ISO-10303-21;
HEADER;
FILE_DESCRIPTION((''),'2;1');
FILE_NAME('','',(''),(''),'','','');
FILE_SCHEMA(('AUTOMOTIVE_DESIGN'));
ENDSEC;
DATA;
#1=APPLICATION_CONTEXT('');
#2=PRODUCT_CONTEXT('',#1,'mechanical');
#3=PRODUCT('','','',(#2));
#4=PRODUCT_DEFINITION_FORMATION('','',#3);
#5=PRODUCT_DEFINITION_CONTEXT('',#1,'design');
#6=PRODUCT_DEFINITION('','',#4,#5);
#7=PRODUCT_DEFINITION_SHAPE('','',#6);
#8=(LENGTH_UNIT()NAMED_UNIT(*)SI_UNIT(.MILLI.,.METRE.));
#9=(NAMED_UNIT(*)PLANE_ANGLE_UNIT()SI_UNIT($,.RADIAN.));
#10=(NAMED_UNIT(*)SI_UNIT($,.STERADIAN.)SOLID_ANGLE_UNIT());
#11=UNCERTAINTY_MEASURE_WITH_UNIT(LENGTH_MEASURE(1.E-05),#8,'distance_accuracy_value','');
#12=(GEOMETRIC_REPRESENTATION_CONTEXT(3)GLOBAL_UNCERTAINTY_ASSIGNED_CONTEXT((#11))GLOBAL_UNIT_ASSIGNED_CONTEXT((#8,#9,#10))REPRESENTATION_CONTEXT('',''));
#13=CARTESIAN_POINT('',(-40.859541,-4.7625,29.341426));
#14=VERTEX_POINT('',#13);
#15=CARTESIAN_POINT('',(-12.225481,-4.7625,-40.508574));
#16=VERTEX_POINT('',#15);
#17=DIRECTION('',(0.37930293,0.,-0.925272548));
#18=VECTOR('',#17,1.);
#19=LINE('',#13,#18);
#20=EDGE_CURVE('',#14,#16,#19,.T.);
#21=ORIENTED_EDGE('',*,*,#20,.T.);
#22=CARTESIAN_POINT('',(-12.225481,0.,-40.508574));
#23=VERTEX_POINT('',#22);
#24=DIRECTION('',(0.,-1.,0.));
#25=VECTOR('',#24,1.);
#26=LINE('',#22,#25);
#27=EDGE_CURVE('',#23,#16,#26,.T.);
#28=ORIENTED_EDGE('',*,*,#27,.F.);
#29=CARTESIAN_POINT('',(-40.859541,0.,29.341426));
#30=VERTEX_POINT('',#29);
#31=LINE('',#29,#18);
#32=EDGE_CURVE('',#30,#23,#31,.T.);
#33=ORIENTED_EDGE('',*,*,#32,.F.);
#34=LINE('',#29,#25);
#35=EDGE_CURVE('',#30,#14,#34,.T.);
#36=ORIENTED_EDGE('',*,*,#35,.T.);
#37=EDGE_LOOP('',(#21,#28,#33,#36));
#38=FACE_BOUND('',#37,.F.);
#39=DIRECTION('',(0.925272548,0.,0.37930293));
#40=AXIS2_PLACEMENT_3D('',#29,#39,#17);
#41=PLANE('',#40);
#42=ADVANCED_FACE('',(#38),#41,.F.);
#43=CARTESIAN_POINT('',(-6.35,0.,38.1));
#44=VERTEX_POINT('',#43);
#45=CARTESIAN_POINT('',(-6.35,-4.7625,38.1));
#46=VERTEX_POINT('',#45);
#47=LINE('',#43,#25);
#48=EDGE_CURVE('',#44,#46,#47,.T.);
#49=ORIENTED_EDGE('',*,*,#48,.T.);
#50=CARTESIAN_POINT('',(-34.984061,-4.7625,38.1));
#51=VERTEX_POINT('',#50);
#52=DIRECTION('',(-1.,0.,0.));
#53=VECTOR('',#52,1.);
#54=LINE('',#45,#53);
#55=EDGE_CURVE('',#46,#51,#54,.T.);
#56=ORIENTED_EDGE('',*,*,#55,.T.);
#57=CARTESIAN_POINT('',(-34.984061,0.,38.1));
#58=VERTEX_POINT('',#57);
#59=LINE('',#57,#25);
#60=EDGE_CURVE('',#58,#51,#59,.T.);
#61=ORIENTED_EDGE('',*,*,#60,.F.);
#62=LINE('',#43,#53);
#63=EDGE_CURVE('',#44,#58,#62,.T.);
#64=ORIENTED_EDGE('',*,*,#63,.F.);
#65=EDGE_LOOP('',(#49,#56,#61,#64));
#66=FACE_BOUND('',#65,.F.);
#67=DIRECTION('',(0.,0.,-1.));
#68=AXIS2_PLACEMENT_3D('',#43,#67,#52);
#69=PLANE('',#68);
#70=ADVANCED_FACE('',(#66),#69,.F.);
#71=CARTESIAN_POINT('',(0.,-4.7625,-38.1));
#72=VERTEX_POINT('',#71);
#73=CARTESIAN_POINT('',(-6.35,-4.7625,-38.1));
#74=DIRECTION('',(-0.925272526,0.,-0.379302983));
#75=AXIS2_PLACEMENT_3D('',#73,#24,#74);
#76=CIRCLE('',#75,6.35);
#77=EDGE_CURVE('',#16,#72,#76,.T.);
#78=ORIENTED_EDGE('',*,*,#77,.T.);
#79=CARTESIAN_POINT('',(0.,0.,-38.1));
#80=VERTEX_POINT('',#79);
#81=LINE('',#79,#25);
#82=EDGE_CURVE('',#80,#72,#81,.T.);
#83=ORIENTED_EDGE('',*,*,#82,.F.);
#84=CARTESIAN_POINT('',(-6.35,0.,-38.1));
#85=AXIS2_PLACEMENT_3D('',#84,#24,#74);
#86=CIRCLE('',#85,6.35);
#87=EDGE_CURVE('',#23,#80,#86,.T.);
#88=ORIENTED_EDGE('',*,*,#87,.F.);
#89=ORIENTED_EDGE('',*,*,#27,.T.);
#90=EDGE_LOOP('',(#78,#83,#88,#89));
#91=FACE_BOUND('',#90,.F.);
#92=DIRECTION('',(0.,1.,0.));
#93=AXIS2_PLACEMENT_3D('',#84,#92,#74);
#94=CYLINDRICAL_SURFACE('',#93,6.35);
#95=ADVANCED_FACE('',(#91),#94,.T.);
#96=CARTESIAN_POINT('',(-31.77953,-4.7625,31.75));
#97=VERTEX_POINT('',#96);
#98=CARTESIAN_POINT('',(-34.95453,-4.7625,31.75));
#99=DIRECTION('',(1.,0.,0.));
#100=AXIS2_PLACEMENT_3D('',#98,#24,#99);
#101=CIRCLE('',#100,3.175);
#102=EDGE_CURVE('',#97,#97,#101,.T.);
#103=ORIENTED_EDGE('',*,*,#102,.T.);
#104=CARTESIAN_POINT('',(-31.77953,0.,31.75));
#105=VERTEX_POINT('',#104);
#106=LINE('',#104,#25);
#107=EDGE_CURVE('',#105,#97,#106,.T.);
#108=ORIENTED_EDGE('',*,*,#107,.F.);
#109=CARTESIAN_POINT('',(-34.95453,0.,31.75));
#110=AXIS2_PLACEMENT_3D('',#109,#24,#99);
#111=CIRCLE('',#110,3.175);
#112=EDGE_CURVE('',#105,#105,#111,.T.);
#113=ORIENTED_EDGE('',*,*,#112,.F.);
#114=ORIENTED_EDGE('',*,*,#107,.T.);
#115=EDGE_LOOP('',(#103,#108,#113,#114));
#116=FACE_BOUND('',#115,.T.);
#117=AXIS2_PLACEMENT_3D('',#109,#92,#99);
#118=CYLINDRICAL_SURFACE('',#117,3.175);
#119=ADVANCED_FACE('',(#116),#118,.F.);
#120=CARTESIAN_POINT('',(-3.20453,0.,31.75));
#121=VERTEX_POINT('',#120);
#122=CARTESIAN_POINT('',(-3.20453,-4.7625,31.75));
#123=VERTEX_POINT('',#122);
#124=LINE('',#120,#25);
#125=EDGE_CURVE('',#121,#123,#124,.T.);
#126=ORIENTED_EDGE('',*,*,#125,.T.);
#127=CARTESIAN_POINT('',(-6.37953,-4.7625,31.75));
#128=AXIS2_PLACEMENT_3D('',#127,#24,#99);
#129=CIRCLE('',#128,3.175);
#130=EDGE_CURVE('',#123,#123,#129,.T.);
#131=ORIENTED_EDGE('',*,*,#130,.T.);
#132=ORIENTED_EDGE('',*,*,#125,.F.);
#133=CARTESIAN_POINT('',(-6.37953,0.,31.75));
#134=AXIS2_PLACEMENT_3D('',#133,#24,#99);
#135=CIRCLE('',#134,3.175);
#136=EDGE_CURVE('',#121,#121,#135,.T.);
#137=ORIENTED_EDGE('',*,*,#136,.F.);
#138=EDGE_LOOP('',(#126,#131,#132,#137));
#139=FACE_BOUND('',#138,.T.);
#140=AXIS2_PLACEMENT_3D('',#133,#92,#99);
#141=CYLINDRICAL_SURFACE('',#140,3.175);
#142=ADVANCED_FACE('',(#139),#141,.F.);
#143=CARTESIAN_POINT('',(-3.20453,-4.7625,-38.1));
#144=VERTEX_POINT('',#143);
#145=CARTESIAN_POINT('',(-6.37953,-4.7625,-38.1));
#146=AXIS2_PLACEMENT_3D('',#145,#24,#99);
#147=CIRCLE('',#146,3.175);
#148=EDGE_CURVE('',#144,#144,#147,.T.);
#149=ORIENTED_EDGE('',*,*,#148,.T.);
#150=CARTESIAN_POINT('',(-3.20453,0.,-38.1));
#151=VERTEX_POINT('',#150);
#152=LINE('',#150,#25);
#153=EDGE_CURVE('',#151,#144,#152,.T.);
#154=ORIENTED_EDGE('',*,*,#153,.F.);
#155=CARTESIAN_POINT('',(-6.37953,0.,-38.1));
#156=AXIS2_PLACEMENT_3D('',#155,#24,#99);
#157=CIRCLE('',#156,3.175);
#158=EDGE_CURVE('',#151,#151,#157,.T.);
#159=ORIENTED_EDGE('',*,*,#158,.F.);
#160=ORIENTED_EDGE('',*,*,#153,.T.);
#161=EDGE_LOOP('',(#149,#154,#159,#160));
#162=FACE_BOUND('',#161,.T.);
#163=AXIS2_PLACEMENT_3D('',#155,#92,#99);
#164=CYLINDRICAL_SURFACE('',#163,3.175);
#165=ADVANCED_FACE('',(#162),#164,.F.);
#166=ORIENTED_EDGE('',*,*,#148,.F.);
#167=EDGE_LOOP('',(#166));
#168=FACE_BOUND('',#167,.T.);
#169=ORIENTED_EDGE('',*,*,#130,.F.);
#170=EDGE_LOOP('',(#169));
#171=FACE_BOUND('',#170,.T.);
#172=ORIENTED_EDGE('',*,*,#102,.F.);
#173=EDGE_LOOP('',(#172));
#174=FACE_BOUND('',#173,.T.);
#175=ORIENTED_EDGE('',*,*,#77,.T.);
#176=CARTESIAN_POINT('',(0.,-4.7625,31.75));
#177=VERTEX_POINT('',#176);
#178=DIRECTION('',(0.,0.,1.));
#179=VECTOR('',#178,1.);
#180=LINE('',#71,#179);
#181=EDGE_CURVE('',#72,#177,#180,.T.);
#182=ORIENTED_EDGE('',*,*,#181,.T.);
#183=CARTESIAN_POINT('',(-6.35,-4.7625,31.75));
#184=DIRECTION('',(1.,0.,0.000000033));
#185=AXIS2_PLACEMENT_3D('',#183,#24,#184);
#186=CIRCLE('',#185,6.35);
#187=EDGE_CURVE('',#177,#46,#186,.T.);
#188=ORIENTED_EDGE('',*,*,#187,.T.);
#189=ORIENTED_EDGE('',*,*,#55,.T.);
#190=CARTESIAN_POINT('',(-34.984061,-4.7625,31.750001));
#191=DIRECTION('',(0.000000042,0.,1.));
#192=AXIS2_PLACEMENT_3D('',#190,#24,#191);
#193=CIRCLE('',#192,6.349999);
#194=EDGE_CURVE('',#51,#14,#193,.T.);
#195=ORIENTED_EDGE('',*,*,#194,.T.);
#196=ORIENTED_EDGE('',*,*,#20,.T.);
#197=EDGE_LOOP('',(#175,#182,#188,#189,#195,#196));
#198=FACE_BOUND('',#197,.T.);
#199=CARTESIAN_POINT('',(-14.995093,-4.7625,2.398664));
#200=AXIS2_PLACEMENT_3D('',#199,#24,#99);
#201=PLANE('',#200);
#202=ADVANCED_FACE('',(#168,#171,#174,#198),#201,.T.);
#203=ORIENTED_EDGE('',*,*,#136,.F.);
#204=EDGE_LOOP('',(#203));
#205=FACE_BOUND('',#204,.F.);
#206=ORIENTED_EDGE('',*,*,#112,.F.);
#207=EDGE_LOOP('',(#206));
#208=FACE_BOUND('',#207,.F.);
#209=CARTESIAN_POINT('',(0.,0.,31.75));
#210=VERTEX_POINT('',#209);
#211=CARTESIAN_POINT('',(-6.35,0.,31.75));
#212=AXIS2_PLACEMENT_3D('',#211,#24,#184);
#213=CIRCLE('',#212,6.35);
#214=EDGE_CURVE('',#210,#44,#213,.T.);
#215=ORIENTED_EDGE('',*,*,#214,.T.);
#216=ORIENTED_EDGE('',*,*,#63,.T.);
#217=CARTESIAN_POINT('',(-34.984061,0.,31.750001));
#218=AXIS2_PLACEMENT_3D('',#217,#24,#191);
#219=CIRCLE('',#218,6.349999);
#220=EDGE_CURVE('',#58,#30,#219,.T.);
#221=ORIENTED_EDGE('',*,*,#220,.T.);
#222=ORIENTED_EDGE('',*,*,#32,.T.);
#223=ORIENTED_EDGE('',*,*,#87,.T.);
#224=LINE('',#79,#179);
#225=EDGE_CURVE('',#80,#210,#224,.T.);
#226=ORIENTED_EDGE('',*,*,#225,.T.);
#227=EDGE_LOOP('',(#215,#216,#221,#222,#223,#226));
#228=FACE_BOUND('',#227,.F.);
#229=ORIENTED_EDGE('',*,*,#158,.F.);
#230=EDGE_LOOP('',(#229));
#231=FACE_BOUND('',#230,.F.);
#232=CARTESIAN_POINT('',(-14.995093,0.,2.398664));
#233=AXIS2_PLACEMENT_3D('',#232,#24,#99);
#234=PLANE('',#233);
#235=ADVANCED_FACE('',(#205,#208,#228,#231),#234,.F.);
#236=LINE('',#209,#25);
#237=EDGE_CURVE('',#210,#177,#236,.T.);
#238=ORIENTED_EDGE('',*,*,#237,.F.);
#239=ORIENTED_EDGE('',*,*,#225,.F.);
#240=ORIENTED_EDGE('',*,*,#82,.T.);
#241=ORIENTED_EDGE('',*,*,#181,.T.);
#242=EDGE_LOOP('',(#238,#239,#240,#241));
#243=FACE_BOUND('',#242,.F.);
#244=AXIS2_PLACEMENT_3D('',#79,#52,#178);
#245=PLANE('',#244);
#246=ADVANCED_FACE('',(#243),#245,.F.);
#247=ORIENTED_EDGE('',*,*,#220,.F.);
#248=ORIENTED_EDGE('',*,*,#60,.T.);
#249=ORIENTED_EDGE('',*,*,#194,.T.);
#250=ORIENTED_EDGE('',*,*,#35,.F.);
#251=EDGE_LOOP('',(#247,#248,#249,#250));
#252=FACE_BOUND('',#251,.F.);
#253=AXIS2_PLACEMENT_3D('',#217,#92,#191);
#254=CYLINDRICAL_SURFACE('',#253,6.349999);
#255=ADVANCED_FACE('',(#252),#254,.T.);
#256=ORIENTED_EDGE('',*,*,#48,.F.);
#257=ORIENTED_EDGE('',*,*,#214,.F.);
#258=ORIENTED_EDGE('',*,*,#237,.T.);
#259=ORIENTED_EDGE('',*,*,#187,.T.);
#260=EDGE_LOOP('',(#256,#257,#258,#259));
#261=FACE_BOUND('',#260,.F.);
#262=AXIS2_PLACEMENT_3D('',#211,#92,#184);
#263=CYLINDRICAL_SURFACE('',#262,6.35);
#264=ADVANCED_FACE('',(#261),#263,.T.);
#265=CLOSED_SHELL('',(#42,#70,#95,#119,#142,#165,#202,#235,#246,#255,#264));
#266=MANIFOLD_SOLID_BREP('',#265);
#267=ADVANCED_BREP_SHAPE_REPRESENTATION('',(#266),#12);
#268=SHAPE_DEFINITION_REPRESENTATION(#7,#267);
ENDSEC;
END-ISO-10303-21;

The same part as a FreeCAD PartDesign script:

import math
import FreeCAD as App
import Part
import Sketcher

V = App.Vector
Q = App.Units.Quantity

doc = App.newDocument("Part")
body = doc.addObject("PartDesign::Body", "Body")

sketch1 = body.newObject("Sketcher::SketchObject", "Sketch")
sketch1.AttachmentSupport = (doc.getObject("XZ_Plane"), [""])
sketch1.MapMode = "FlatFace"
sketch1.addGeometry([
    Part.ArcOfCircle(Part.Circle(V(-6.4, -38.1, 0), V(0, 0, 1), 6.4), math.radians(-158), math.radians(0)),
    Part.LineSegment(V(0, -38.1, 0), V(0, 31.8, 0)),
    Part.ArcOfCircle(Part.Circle(V(-6.4, 31.7, 0), V(0, 0, 1), 6.4), math.radians(0), math.radians(90)),
    Part.LineSegment(V(-6.3, 38.1, 0), V(-35, 38.1, 0)),
    Part.ArcOfCircle(Part.Circle(V(-35, 31.8, 0), V(0, 0, 1), 6.3), math.radians(90), math.radians(202)),
    Part.LineSegment(V(-40.9, 29.3, 0), V(-12.2, -40.5, 0)),
    Part.Circle(V(-6.4, -38.1, 0), V(0, 0, 1), 3.2),
    Part.Circle(V(-35, 31.8, 0), V(0, 0, 1), 3.2),
    Part.Circle(V(-6.4, 31.8, 0), V(0, 0, 1), 3.2),
], False)
sketch1.addConstraint([
    Sketcher.Constraint("Tangent", 0, 2, 1, 1),
    Sketcher.Constraint("Tangent", 1, 2, 2, 1),
    Sketcher.Constraint("Tangent", 2, 2, 3, 1),
    Sketcher.Constraint("Tangent", 3, 2, 4, 1),
    Sketcher.Constraint("Tangent", 4, 2, 5, 1),
    Sketcher.Constraint("Tangent", 5, 2, 0, 1),
    Sketcher.Constraint("Vertical", 1),
    Sketcher.Constraint("Horizontal", 3),
    Sketcher.Constraint("Equal", 0, 2),
    Sketcher.Constraint("Equal", 2, 4),
    Sketcher.Constraint("Equal", 6, 7),
    Sketcher.Constraint("Equal", 7, 8),
    Sketcher.Constraint("PointOnObject", 0, 2, -2),
    Sketcher.Constraint("Horizontal", 0, 3, 6, 3),
    Sketcher.Constraint("Horizontal", 4, 3, 7, 3),
    Sketcher.Constraint("Horizontal", 7, 3, 8, 3),
    Sketcher.Constraint("Vertical", 6, 3, 8, 3),
    Sketcher.Constraint("Diameter", 6, Q("0.25 in")),
    Sketcher.Constraint("Radius", 0, Q("0.25 in")),
    Sketcher.Constraint("DistanceY", 1, 1, 1, 2, Q("2.75 in")),
    Sketcher.Constraint("DistanceY", 0, 3, -1, 1, Q("1.5 in")),
    Sketcher.Constraint("DistanceX", 7, 3, 6, 3, Q("1.125 in")),
    Sketcher.Constraint("DistanceX", 3, 2, 3, 1, Q("28.634061 mm")),
    Sketcher.Constraint("DistanceX", 6, 3, -1, 1, Q("6.37953 mm")),
])
pad1 = body.newObject("PartDesign::Pad", "Pad")
pad1.Profile = sketch1
pad1.Length = Q("0.1875 in")

doc.recompute()
